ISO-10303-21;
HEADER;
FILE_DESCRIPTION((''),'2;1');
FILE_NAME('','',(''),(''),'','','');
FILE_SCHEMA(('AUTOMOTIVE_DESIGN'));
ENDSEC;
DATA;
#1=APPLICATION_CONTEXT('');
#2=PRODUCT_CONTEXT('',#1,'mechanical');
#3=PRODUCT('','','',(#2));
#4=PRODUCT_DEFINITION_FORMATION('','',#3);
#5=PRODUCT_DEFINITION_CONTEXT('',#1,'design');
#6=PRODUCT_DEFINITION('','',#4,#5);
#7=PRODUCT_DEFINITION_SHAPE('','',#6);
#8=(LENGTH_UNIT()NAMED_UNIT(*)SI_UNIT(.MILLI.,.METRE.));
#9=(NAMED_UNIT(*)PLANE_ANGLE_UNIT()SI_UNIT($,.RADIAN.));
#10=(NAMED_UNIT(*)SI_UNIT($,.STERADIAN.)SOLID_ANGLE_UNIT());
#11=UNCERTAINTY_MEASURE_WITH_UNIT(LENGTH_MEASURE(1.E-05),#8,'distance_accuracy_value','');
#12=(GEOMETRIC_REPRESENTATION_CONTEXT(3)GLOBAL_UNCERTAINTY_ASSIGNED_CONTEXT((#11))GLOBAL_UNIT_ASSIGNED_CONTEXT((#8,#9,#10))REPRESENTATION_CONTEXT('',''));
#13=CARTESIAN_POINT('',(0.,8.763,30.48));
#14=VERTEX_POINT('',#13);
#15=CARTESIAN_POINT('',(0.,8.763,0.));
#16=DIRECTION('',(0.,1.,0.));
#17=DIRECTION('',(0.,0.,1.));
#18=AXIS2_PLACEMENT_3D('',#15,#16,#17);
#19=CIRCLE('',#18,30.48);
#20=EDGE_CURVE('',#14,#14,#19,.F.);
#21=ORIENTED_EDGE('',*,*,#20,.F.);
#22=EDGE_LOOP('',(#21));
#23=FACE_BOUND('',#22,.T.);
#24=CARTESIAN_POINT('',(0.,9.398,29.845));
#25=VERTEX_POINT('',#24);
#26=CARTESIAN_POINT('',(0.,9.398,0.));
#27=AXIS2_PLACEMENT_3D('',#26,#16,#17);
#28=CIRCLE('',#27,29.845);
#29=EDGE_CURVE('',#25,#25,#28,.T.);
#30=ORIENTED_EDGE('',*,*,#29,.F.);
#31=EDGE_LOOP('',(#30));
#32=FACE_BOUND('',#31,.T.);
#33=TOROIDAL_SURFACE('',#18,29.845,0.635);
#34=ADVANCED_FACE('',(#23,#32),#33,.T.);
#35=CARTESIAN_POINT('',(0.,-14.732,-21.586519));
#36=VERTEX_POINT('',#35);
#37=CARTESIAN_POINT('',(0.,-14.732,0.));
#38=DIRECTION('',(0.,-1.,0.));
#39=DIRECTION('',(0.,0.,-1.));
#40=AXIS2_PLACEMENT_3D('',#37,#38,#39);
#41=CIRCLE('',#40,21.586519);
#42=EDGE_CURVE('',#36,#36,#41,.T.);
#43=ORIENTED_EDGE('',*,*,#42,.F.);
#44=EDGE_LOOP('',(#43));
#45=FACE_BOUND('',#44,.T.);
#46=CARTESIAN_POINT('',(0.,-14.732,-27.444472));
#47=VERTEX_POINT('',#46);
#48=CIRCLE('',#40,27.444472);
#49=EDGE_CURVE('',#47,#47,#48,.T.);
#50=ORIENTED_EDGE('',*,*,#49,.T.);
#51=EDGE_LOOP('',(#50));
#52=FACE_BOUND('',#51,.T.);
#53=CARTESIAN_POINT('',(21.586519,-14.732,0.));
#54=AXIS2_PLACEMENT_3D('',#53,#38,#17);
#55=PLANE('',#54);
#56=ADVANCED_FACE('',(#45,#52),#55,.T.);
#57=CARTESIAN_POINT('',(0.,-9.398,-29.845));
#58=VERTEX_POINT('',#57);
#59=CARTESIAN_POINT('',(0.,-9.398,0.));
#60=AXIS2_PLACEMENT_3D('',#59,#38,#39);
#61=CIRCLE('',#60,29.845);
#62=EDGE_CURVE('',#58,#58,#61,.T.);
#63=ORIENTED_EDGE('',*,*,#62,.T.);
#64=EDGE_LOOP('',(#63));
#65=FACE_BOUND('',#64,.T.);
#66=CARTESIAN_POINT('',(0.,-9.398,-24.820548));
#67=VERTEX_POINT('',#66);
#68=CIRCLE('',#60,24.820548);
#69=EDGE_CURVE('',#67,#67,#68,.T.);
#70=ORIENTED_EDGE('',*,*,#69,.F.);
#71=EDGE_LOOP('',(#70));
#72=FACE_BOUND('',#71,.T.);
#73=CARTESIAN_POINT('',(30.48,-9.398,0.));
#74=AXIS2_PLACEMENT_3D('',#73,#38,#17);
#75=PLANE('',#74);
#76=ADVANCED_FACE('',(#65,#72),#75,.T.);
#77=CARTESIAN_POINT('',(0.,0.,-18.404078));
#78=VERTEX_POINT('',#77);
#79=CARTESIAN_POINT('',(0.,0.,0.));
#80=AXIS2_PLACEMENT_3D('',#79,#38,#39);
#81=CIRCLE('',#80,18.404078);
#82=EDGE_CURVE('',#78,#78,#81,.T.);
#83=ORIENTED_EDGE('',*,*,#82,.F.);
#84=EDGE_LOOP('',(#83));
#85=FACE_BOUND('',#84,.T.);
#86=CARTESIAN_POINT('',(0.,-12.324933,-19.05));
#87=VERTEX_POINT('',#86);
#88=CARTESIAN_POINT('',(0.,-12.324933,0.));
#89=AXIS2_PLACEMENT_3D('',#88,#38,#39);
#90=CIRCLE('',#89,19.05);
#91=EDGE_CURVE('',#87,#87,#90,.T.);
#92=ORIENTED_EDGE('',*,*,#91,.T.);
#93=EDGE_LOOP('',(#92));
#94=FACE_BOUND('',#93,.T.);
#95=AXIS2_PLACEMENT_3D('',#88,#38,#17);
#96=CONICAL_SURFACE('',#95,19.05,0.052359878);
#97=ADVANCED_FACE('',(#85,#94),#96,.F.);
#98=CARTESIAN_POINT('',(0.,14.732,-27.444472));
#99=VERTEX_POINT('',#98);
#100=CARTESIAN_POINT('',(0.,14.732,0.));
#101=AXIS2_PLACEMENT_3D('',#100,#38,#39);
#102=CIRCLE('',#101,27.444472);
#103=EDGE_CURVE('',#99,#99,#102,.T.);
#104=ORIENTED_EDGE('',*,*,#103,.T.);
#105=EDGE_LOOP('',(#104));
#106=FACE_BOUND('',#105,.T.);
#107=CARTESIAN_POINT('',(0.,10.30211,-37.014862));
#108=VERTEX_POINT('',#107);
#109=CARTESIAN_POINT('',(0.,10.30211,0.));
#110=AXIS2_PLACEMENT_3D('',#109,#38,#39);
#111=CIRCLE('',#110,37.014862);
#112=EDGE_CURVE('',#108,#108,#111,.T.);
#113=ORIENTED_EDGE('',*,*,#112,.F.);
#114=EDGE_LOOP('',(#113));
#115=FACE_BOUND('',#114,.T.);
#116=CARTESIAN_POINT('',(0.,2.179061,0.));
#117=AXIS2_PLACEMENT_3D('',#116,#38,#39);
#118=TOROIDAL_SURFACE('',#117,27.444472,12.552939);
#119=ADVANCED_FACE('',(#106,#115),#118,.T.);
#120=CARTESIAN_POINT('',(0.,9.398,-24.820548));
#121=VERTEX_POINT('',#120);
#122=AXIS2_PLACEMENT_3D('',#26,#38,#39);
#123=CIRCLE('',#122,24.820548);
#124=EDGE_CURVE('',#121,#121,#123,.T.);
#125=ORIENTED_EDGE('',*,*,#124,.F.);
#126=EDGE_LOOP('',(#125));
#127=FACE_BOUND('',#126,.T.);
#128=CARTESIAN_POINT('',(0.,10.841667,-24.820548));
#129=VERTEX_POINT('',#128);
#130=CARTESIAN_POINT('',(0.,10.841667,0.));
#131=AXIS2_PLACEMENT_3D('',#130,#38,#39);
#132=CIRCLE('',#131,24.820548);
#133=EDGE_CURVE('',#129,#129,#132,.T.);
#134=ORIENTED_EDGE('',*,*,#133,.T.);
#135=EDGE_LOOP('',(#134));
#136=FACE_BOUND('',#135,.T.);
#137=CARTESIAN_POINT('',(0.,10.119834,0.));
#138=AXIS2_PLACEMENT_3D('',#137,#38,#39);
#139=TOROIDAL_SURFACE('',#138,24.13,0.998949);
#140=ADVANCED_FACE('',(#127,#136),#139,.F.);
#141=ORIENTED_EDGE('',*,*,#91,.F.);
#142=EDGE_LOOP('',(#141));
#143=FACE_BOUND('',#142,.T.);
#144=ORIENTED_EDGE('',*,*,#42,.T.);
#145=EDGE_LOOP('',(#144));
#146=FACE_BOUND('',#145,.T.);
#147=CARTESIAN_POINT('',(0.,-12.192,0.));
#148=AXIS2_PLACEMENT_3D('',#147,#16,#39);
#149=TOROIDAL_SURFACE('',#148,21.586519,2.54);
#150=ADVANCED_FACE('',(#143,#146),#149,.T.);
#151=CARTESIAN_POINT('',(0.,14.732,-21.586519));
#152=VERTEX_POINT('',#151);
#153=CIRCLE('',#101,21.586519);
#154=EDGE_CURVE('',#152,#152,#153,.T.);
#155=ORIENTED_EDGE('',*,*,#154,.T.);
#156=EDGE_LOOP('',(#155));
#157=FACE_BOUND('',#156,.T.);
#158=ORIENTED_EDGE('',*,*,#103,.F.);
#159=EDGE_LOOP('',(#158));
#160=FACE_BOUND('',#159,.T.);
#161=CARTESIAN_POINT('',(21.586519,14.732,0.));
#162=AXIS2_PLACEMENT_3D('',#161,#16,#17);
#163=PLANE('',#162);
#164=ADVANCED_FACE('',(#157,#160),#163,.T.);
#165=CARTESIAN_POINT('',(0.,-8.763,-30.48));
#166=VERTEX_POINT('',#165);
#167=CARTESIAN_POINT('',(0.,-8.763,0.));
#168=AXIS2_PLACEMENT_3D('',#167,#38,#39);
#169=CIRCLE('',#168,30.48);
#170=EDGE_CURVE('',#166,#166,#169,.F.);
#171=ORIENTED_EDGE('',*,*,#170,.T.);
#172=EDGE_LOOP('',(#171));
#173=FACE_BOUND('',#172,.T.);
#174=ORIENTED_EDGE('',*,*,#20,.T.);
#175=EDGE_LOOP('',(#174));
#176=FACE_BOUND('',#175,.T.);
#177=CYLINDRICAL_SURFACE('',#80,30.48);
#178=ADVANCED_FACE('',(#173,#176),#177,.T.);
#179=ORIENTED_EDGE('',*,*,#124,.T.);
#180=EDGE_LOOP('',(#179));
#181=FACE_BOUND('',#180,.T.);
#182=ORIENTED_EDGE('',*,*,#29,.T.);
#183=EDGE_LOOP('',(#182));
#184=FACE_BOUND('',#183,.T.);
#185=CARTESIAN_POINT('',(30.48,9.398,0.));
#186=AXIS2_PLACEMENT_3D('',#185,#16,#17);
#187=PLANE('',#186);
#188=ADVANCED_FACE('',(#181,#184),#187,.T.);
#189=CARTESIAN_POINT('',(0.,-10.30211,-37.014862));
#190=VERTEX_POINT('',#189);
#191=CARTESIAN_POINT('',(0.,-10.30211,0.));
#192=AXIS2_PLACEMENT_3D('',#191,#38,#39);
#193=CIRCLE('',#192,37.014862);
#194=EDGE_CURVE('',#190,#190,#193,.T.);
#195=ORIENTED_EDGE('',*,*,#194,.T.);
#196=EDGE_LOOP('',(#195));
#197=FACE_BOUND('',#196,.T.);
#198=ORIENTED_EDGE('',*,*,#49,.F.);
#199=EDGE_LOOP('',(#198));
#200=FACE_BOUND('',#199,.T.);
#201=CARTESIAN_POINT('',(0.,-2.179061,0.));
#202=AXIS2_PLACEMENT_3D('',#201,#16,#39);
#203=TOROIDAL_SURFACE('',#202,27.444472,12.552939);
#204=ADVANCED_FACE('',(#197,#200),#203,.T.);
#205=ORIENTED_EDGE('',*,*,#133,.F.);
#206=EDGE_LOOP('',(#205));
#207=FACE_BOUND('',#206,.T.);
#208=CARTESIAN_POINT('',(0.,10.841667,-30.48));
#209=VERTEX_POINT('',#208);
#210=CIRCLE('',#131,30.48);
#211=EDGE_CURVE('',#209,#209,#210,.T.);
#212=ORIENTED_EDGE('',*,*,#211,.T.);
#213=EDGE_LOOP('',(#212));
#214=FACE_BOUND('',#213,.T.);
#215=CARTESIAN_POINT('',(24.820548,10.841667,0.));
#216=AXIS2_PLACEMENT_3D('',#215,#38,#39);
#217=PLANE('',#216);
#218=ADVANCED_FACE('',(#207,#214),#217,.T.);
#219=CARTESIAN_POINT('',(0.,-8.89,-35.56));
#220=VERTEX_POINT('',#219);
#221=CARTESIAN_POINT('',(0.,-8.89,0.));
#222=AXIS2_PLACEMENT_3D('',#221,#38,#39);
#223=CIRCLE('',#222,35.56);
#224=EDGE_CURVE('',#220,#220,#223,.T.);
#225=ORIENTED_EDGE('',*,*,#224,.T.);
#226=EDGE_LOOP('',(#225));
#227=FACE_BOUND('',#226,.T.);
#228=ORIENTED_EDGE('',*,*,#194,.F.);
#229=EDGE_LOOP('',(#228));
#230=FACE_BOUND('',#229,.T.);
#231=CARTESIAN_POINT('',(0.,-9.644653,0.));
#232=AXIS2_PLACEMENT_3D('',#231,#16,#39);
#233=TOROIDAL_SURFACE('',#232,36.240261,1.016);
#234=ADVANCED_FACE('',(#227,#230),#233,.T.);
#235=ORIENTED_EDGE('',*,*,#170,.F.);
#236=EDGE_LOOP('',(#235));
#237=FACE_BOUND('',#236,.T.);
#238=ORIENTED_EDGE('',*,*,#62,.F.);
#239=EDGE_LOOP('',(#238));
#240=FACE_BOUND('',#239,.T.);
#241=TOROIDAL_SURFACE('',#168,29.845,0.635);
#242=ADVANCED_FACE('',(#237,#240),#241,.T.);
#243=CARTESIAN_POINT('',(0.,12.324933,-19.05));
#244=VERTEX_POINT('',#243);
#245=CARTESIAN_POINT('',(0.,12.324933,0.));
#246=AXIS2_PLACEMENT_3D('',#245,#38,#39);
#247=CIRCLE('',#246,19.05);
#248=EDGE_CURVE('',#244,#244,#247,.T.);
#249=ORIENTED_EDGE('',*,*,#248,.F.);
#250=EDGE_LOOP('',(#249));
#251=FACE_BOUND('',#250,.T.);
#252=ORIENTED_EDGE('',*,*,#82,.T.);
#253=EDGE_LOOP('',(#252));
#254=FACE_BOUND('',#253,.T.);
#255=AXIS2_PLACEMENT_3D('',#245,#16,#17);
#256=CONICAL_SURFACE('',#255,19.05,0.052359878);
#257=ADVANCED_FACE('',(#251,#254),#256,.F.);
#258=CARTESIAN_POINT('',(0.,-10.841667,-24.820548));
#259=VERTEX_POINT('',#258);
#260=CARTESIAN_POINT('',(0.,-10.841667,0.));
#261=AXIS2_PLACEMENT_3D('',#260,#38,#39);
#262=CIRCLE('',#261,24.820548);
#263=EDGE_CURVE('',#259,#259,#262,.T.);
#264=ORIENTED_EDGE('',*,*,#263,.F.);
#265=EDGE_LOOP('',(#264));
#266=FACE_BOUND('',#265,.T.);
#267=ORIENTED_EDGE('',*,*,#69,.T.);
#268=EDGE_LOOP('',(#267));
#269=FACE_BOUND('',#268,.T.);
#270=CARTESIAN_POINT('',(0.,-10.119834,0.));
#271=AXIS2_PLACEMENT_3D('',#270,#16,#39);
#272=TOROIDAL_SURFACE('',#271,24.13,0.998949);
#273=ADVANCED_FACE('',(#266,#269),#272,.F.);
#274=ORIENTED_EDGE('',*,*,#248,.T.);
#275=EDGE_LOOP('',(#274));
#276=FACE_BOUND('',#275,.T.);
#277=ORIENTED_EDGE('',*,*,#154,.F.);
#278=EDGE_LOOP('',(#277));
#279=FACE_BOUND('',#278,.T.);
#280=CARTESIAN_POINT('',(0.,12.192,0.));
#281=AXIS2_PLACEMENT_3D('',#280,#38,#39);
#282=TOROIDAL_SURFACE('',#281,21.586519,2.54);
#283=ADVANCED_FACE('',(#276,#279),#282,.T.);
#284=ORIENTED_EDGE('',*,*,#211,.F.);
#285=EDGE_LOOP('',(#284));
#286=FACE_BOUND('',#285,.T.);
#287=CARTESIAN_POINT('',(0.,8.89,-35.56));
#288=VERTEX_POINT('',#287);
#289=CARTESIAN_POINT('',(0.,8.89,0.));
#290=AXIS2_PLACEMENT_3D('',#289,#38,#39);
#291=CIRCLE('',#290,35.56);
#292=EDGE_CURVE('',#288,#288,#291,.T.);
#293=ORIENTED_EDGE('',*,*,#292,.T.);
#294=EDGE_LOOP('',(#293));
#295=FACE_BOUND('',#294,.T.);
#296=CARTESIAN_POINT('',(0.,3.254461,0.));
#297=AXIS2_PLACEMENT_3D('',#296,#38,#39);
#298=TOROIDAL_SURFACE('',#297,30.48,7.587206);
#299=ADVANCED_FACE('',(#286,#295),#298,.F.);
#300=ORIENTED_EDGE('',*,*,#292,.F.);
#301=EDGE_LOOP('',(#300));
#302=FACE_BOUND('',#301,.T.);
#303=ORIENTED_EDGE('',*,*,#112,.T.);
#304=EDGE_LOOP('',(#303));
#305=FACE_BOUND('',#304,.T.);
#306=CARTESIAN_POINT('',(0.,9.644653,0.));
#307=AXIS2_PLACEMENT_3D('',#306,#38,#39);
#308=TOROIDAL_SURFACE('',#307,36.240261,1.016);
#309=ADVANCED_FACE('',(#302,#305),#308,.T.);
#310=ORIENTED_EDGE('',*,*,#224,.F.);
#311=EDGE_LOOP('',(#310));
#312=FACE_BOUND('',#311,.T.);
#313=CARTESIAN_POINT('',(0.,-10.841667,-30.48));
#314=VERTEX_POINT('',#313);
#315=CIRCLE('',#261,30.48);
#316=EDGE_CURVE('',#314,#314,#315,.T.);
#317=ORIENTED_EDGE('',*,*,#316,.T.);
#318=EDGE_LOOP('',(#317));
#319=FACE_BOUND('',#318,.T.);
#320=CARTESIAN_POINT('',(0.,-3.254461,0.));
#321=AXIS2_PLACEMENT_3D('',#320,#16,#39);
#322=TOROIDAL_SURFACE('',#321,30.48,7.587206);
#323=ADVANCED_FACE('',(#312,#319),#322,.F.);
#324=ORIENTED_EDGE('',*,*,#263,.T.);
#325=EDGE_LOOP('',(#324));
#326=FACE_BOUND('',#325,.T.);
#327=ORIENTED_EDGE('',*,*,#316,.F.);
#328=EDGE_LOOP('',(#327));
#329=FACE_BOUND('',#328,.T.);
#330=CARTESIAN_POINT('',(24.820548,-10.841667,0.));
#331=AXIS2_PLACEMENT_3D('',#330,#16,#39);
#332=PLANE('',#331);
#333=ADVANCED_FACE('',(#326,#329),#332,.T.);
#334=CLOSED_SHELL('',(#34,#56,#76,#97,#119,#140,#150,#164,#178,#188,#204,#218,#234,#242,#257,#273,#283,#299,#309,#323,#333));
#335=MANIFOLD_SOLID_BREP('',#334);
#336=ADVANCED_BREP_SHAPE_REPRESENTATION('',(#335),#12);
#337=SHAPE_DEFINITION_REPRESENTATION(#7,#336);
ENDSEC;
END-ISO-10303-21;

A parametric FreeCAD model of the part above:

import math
import FreeCAD as App
import Part
import Sketcher

V = App.Vector
Q = App.Units.Quantity


def edges_at(feature, points):
    """Names of the edges that pass closest to the given points."""
    edges = feature.Shape.Edges
    near = lambda p: min(range(len(edges)), key=lambda i: edges[i].distToShape(Part.Vertex(*p))[0])
    return sorted({f"Edge{near(p) + 1}" for p in points})

doc = App.newDocument("Part")
body = doc.addObject("PartDesign::Body", "Body")

sketch1 = body.newObject("Sketcher::SketchObject", "Sketch")
sketch1.AttachmentSupport = (doc.getObject("XY_Plane"), [""])
sketch1.MapMode = "FlatFace"
sketch1.addGeometry([
    Part.LineSegment(V(19.1, 12.3, 0), V(18.4, 0, 0)),
    Part.LineSegment(V(18.4, 0, 0), V(30.5, 0, 0)),
    Part.LineSegment(V(30.5, 0, 0), V(30.5, 9.4, 0)),
    Part.LineSegment(V(30.5, 9.4, 0), V(24.8, 9.4, 0)),
    Part.ArcOfCircle(Part.Circle(V(24.1, 10.1, 0), V(0, 0, 1), 1), math.radians(46), math.radians(314)),
    Part.LineSegment(V(24.8, 10.8, 0), V(30.5, 10.8, 0)),
    Part.ArcOfCircle(Part.Circle(V(30.5, 3.3, 0), V(0, 0, 1), 7.6), math.radians(48), math.radians(90)),
    Part.ArcOfCircle(Part.Circle(V(36.2, 9.6, 0), V(0, 0, 1), 1), math.radians(-132), math.radians(40)),
    Part.ArcOfCircle(Part.Circle(V(27.4, 2.2, 0), V(0, 0, 1), 12.6), math.radians(40), math.radians(90)),
    Part.LineSegment(V(27.4, 14.7, 0), V(21.6, 14.7, 0)),
    Part.ArcOfCircle(Part.Circle(V(21.6, 12.2, 0), V(0, 0, 1), 2.5), math.radians(90), math.radians(177)),
], False)
sketch1.addConstraint([
    Sketcher.Constraint("Coincident", 0, 2, 1, 1),
    Sketcher.Constraint("Coincident", 1, 2, 2, 1),
    Sketcher.Constraint("Coincident", 2, 2, 3, 1),
    Sketcher.Constraint("Coincident", 3, 2, 4, 2),
    Sketcher.Constraint("Coincident", 4, 1, 5, 1),
    Sketcher.Constraint("Tangent", 5, 2, 6, 2),
    Sketcher.Constraint("Tangent", 6, 1, 7, 1),
    Sketcher.Constraint("Tangent", 7, 2, 8, 1),
    Sketcher.Constraint("Tangent", 8, 2, 9, 1),
    Sketcher.Constraint("Tangent", 9, 2, 10, 1),
    Sketcher.Constraint("Tangent", 10, 2, 0, 1),
    Sketcher.Constraint("Horizontal", 1),
    Sketcher.Constraint("Vertical", 2),
    Sketcher.Constraint("Horizontal", 3),
    Sketcher.Constraint("Horizontal", 5),
    Sketcher.Constraint("Horizontal", 9),
    Sketcher.Constraint("PointOnObject", 0, 2, -1),
    Sketcher.Constraint("Vertical", 6, 3, 1, 2),
    Sketcher.Constraint("Vertical", 3, 2, 4, 1),
    Sketcher.Constraint("Radius", 10, Q("0.1 in")),
    Sketcher.Constraint("Radius", 7, Q("0.04 in")),
    Sketcher.Constraint("Angle", 0, Q("-93 deg")),
    Sketcher.Constraint("DistanceY", 2, 1, 2, 2, Q("0.37 in")),
    Sketcher.Constraint("DistanceX", -1, 1, 6, 3, Q("1.2 in")),
    Sketcher.Constraint("DistanceX", -1, 1, 6, 1, Q("1.4 in")),
    Sketcher.Constraint("DistanceX", 10, 2, 4, 3, Q("0.2 in")),
    Sketcher.Constraint("DistanceX", -1, 1, 4, 3, Q("0.95 in")),
    Sketcher.Constraint("DistanceY", -1, 1, 10, 3, Q("0.48 in")),
    Sketcher.Constraint("DistanceY", -1, 1, 6, 1, Q("0.35 in")),
    Sketcher.Constraint("Radius", 4, 0.998949),
    Sketcher.Constraint("Radius", 8, 12.552939),
    Sketcher.Constraint("Radius", 6, 7.587206),
])
revolution = body.newObject("PartDesign::Revolution", "Revolution")
revolution.Profile = sketch1
revolution.ReferenceAxis = (sketch1, ["V_Axis"])
revolution.Angle = 360
doc.recompute()

fillet = body.newObject("PartDesign::Fillet", "Fillet")
fillet.Base = (revolution, edges_at(revolution, [(0, 9.398, 30.48)]))
fillet.Radius = Q("0.025 in")
doc.recompute()

mirrored = body.newObject("PartDesign::Mirrored", "Mirrored")
mirrored.Originals = [revolution]
mirrored.MirrorPlane = (doc.getObject("XZ_Plane"), [""])
body.Tip = mirrored
doc.recompute()

fillet2 = body.newObject("PartDesign::Fillet", "Fillet001")
fillet2.Base = (mirrored, edges_at(mirrored, [(0, -9.398, 30.48)]))
fillet2.Radius = Q("0.025 in")

doc.recompute()
